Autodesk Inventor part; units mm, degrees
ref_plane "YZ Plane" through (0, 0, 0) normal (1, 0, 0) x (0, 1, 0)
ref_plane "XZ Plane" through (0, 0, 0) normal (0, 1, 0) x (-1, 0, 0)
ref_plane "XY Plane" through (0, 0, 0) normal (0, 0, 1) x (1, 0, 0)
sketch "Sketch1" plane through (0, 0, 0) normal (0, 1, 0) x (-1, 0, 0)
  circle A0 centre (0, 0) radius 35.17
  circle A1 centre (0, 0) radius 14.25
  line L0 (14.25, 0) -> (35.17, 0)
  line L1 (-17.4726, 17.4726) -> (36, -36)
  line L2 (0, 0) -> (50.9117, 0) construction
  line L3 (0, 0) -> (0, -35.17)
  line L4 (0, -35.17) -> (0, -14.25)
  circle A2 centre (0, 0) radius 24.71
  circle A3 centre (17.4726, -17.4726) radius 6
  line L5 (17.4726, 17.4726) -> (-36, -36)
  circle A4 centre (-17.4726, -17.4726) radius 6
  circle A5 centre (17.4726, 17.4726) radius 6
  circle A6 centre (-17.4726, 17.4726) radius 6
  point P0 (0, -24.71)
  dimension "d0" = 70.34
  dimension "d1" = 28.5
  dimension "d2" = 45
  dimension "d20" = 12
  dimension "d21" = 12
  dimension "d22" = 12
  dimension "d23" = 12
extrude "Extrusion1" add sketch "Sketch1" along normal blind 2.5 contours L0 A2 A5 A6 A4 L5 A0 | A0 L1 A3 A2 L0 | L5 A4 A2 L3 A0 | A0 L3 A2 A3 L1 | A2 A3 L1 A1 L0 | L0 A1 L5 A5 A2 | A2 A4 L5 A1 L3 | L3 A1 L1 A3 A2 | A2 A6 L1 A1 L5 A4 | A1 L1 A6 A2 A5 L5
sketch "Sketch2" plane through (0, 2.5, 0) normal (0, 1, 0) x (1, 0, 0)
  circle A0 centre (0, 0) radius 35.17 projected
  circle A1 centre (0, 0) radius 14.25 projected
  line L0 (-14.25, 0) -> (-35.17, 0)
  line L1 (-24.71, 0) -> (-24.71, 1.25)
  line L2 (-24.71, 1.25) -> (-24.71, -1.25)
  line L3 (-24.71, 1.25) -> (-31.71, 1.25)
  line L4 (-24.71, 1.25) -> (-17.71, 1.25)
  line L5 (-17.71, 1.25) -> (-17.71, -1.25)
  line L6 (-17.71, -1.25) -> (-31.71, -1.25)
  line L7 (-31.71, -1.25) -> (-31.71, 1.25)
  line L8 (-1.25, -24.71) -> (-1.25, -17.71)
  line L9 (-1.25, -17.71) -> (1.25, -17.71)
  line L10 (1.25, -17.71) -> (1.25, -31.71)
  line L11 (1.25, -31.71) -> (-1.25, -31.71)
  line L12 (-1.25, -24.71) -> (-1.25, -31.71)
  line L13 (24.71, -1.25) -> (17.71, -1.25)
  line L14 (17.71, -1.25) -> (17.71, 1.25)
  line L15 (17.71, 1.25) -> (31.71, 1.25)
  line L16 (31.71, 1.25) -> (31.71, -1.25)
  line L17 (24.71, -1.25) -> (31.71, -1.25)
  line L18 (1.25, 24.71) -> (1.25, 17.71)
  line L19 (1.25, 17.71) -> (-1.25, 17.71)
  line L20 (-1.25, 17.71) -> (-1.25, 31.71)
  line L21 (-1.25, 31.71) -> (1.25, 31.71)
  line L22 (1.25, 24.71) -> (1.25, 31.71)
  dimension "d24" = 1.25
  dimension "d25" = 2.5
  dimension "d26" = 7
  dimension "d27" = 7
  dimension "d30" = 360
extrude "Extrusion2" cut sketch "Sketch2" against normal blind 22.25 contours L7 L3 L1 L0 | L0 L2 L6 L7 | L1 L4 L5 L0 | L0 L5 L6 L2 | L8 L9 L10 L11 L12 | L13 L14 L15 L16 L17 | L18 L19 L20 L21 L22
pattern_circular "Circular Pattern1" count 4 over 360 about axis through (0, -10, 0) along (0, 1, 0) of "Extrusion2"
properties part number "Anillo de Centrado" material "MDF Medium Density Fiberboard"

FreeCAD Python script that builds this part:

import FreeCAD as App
import Part
import Sketcher
from FreeCAD import Vector


def add_polygon(sketch, points):
    """Adds a closed chain of lines whose ends are joined by coincident constraints."""
    first, n = sketch.GeometryCount, len(points)
    for a, b in zip(points, points[1:] + points[:1]):
        sketch.addGeometry(Part.LineSegment(App.Vector(*a, 0), App.Vector(*b, 0)), False)
    for i in range(n):
        sketch.addConstraint(Sketcher.Constraint("Coincident", first + i, 2, first + (i + 1) % n, 1))

doc = App.newDocument("Part")
body = doc.addObject("PartDesign::Body", "Body")

# Sketch on XZ plane
sketch1 = doc.addObject("Sketcher::SketchObject", "Sketch")
body.addObject(sketch1)
sketch1.AttachmentSupport = (doc.XZ_Plane, [""])
sketch1.MapMode = "FlatFace"
sketch1.addGeometry([
    Part.Circle(Vector(0, 0, 0), Vector(0, 0, 1), 35),  # 0
    Part.Circle(Vector(-17, 17, 0), Vector(0, 0, 1), 6),  # 1
    Part.Circle(Vector(17, 17, 0), Vector(0, 0, 1), 6),  # 2
    Part.Circle(Vector(17, -17, 0), Vector(0, 0, 1), 6),  # 3
    Part.Circle(Vector(-17, -17, 0), Vector(0, 0, 1), 6),  # 4
    Part.Circle(Vector(0, 0, 0), Vector(0, 0, 1), 14),  # 5
], False)
sketch1.addConstraint([
    Sketcher.Constraint("Coincident", 0, 3, -1, 1),
    Sketcher.Constraint("Coincident", 5, 3, -1, 1),
    Sketcher.Constraint("Equal", 1, 2),
    Sketcher.Constraint("Equal", 2, 3),
    Sketcher.Constraint("Equal", 3, 4),
    Sketcher.Constraint("Symmetric", 1, 3, 3, 3, -1, 1),
    Sketcher.Constraint("Symmetric", 2, 3, 4, 3, -1, 1),
    Sketcher.Constraint("Symmetric", 1, 3, 2, 3, -2),
    Sketcher.Constraint("Diameter", 1, 12.0),
    Sketcher.Constraint("Diameter", 5, 28.5),
    Sketcher.Constraint("Diameter", 0, 70.34),
    Sketcher.Constraint("DistanceX", 1, 3, -1, 1, 17.4726),
    Sketcher.Constraint("DistanceY", -1, 1, 1, 3, 17.4726),
])
pad1 = doc.addObject("PartDesign::Pad", "Pad")
body.addObject(pad1)
pad1.Profile = sketch1
pad1.Length = 2.5
pad1.Reversed = True

# Sketch on XZ plane
sketch2 = doc.addObject("Sketcher::SketchObject", "Sketch001")
body.addObject(sketch2)
sketch2.AttachmentSupport = (doc.XZ_Plane, [""])
sketch2.MapMode = "FlatFace"
sketch2.AttachmentOffset = App.Placement(Vector(0, 0, -2.5), App.Rotation())
add_polygon(sketch2, [(-31.7, -1.2), (-31.7, 1.2), (-17.7, 1.2), (-17.7, -1.2)])  # lines 0-3
add_polygon(sketch2, [(-1.2, 17.7), (-1.2, 31.7), (1.2, 31.7), (1.2, 17.7)])  # lines 4-7
add_polygon(sketch2, [(17.7, 1.2), (31.7, 1.2), (31.7, -1.2), (17.7, -1.2)])  # lines 8-11
add_polygon(sketch2, [(1.2, -17.7), (1.2, -31.7), (-1.2, -31.7), (-1.2, -17.7)])  # lines 12-15
sketch2.addConstraint([
    Sketcher.Constraint("Vertical", 0),
    Sketcher.Constraint("Horizontal", 1),
    Sketcher.Constraint("Vertical", 2),
    Sketcher.Constraint("Horizontal", 3),
    Sketcher.Constraint("Vertical", 4),
    Sketcher.Constraint("Horizontal", 5),
    Sketcher.Constraint("Vertical", 6),
    Sketcher.Constraint("Horizontal", 7),
    Sketcher.Constraint("Horizontal", 8),
    Sketcher.Constraint("Vertical", 9),
    Sketcher.Constraint("Horizontal", 10),
    Sketcher.Constraint("Vertical", 11),
    Sketcher.Constraint("Vertical", 12),
    Sketcher.Constraint("Horizontal", 13),
    Sketcher.Constraint("Vertical", 14),
    Sketcher.Constraint("Horizontal", 15),
    Sketcher.Constraint("Symmetric", 3, 2, 8, 2, -1, 1),
    Sketcher.Constraint("Symmetric", 1, 2, 10, 2, -1, 1),
    Sketcher.Constraint("Symmetric", 4, 2, 12, 2, -1, 1),
    Sketcher.Constraint("Symmetric", 6, 2, 14, 2, -1, 1),
    Sketcher.Constraint("Horizontal", 1, 2, 8, 2),
    Sketcher.Constraint("Vertical", 6, 2, 12, 2),
    Sketcher.Constraint("Equal", 15, 0),
    Sketcher.Constraint("Equal", 10, 4),
    Sketcher.Constraint("DistanceX", 5, 1, 5, 2, 2.5),
    Sketcher.Constraint("DistanceX", 1, 1, 1, 2, 14.0),
    Sketcher.Constraint("DistanceX", 0, 2, -1, 1, 31.71),
    Sketcher.Constraint("DistanceY", -1, 1, 4, 2, 31.71),
])
pocket1 = doc.addObject("PartDesign::Pocket", "Pocket")
body.addObject(pocket1)
pocket1.Profile = sketch2
pocket1.Length = 22.25
pocket1.Reversed = True
doc.recompute()

polarpattern = doc.addObject("PartDesign::PolarPattern", "PolarPattern")
body.addObject(polarpattern)
polarpattern.Originals = [pocket1]
polarpattern.Axis = (doc.Y_Axis, [""])
polarpattern.Angle = 360
polarpattern.Occurrences = 4
body.Tip = polarpattern

doc.recompute()
